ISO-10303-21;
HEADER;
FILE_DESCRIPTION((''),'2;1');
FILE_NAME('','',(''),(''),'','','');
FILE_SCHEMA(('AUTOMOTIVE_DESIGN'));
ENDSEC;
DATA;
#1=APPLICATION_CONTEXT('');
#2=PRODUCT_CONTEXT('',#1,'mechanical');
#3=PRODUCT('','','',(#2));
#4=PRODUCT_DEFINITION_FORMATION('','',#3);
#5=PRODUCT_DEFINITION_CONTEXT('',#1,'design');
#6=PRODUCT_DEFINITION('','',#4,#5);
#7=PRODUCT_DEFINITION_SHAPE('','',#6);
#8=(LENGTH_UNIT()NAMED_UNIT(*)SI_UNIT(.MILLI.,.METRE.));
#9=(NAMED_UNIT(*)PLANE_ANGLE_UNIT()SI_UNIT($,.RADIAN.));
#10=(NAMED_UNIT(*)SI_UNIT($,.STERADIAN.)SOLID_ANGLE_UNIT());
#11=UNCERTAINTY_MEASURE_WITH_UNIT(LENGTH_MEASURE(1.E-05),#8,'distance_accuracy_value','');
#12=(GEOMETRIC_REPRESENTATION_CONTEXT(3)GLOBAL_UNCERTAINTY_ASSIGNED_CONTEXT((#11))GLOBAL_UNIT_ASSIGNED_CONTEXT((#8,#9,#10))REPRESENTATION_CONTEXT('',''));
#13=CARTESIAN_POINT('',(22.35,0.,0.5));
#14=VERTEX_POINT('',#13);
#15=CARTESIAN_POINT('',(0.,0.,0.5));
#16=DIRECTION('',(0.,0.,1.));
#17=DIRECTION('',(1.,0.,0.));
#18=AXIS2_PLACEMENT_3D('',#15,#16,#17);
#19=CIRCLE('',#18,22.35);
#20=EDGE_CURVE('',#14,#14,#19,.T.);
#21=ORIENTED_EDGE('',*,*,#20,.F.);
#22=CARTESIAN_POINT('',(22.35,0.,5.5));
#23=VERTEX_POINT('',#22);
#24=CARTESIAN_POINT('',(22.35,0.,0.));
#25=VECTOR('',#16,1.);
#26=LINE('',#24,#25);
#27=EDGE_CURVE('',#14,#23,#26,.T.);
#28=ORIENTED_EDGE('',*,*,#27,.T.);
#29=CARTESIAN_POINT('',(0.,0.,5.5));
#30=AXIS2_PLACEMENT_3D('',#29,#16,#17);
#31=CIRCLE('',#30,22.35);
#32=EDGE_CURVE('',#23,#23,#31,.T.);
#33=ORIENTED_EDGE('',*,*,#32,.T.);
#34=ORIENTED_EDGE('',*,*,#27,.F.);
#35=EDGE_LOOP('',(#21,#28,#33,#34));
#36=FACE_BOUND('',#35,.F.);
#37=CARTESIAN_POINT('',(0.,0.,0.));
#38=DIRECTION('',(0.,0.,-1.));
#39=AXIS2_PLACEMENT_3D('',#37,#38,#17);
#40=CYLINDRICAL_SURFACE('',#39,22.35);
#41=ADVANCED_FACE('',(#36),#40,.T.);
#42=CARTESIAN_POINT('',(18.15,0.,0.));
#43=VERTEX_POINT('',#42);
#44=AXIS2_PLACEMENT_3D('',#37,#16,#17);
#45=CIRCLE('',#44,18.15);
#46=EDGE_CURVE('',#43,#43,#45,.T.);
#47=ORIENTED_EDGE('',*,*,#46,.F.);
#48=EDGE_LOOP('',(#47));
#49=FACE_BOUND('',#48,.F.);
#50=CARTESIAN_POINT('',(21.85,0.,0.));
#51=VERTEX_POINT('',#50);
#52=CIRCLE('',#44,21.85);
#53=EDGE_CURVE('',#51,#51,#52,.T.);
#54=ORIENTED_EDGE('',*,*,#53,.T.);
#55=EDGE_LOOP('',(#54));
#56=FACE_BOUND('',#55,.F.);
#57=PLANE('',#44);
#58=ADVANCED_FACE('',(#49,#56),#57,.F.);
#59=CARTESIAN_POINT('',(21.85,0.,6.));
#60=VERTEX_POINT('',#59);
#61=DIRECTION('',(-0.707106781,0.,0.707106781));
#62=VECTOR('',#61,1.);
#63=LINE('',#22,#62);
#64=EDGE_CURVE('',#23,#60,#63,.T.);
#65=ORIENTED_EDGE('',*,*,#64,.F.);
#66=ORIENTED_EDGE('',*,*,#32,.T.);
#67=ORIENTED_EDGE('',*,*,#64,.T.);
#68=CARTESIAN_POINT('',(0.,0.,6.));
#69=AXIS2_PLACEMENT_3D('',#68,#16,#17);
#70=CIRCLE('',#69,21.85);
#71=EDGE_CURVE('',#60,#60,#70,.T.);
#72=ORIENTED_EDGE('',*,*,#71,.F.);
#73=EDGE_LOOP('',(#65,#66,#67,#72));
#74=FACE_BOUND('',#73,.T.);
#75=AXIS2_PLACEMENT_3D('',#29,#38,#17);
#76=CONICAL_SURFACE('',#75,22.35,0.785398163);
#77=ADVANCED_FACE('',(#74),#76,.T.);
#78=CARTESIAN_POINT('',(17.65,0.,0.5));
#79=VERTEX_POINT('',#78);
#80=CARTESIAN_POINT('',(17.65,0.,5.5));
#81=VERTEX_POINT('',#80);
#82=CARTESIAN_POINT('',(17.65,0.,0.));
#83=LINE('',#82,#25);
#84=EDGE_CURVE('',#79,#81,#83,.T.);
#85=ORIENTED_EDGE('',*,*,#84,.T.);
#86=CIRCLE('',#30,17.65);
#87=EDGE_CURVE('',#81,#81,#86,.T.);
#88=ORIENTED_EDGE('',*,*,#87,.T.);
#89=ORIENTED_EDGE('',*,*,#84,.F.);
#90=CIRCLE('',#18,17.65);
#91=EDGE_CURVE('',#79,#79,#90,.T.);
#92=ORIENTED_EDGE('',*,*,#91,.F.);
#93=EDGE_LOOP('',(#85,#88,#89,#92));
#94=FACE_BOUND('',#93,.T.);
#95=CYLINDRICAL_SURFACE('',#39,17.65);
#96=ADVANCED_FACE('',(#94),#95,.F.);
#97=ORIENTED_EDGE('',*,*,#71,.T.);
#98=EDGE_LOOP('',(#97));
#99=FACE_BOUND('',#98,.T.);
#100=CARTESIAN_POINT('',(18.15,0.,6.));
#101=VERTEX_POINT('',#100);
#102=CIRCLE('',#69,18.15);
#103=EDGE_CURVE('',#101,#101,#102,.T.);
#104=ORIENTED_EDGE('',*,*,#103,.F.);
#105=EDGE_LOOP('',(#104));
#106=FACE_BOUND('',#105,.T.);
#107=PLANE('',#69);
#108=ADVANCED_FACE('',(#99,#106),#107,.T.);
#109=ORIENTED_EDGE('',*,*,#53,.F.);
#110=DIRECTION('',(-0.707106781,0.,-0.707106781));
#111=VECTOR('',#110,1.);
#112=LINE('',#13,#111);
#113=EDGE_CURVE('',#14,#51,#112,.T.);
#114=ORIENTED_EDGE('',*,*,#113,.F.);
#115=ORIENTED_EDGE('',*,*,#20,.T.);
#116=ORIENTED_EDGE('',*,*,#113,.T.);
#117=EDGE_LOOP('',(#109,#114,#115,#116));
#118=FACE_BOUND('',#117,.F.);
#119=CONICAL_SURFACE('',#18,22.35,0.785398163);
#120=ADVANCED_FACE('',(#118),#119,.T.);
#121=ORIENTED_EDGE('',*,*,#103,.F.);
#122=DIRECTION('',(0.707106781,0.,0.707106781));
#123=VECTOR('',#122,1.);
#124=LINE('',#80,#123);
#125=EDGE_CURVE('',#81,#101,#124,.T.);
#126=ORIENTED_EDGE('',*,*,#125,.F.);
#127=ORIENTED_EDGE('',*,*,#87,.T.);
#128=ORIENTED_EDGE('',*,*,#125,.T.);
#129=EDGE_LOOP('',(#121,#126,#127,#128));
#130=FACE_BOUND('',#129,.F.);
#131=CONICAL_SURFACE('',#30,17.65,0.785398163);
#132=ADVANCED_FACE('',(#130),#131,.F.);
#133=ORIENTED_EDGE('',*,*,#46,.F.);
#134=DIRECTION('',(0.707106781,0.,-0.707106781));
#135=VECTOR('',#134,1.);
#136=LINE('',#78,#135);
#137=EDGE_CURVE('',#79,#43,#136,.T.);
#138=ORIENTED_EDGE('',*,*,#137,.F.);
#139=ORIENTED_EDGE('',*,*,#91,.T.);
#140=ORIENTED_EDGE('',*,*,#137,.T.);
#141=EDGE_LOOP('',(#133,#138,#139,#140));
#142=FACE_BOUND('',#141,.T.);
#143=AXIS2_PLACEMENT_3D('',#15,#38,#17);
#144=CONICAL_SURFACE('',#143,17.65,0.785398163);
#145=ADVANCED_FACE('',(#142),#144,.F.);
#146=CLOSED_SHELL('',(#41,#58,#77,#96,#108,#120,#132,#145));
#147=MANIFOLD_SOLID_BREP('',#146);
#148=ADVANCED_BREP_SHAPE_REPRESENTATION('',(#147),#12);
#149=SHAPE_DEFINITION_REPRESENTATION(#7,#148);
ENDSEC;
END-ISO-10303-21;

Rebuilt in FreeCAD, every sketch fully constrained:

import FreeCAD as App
import Part
import Sketcher
from FreeCAD import Vector


def edges_at(feature, points):
    """Names of the edges that pass closest to the given points."""
    edges = feature.Shape.Edges
    near = lambda p: min(range(len(edges)), key=lambda i: edges[i].distToShape(Part.Vertex(*p))[0])
    return sorted({f"Edge{near(p) + 1}" for p in points})

doc = App.newDocument("Part")
params = doc.addObject("Spreadsheet::Sheet", "Params")
for row, (alias, value) in enumerate([
    ("sketch1_diameter", "44.7 mm"),
    ("sketch1_diameter2", "35.3 mm"),
    ("pad1_length", "6 mm"),
    ("chamfer_size", "0.5 mm"),
], start=1):
    params.set(f"A{row}", alias)
    params.set(f"B{row}", "=" + value)
    params.setAlias(f"B{row}", alias)

body = doc.addObject("PartDesign::Body", "Body")

sketch1 = body.newObject("Sketcher::SketchObject", "Sketch")
sketch1.AttachmentSupport = (doc.getObject("XY_Plane"), [""])
sketch1.MapMode = "FlatFace"
sketch1.addGeometry([
    Part.Circle(Vector(0, 0, 0), Vector(0, 0, 1), 22),
    Part.Circle(Vector(0, 0, 0), Vector(0, 0, 1), 18),
], False)
sketch1.addConstraint([
    Sketcher.Constraint("Coincident", 0, 3, -1, 1),
    Sketcher.Constraint("Coincident", 1, 3, -1, 1),
    Sketcher.Constraint("Diameter", 0, 44.7),
    Sketcher.Constraint("Diameter", 1, 35.3),
])
sketch1.setExpression("Constraints[2]", "Params.sketch1_diameter")
sketch1.setExpression("Constraints[3]", "Params.sketch1_diameter2")
pad1 = body.newObject("PartDesign::Pad", "Pad")
pad1.Profile = sketch1
pad1.setExpression("Length", "Params.pad1_length")
doc.recompute()

chamfer = body.newObject("PartDesign::Chamfer", "Chamfer")
chamfer.Base = (pad1, edges_at(pad1, [
    (-17.65, 0, 6),
    (-17.65, 0, 0),
    (-22.35, 0, 6),
    (-22.35, 0, 0),
]))
chamfer.setExpression("Size", "Params.chamfer_size")

doc.recompute()
